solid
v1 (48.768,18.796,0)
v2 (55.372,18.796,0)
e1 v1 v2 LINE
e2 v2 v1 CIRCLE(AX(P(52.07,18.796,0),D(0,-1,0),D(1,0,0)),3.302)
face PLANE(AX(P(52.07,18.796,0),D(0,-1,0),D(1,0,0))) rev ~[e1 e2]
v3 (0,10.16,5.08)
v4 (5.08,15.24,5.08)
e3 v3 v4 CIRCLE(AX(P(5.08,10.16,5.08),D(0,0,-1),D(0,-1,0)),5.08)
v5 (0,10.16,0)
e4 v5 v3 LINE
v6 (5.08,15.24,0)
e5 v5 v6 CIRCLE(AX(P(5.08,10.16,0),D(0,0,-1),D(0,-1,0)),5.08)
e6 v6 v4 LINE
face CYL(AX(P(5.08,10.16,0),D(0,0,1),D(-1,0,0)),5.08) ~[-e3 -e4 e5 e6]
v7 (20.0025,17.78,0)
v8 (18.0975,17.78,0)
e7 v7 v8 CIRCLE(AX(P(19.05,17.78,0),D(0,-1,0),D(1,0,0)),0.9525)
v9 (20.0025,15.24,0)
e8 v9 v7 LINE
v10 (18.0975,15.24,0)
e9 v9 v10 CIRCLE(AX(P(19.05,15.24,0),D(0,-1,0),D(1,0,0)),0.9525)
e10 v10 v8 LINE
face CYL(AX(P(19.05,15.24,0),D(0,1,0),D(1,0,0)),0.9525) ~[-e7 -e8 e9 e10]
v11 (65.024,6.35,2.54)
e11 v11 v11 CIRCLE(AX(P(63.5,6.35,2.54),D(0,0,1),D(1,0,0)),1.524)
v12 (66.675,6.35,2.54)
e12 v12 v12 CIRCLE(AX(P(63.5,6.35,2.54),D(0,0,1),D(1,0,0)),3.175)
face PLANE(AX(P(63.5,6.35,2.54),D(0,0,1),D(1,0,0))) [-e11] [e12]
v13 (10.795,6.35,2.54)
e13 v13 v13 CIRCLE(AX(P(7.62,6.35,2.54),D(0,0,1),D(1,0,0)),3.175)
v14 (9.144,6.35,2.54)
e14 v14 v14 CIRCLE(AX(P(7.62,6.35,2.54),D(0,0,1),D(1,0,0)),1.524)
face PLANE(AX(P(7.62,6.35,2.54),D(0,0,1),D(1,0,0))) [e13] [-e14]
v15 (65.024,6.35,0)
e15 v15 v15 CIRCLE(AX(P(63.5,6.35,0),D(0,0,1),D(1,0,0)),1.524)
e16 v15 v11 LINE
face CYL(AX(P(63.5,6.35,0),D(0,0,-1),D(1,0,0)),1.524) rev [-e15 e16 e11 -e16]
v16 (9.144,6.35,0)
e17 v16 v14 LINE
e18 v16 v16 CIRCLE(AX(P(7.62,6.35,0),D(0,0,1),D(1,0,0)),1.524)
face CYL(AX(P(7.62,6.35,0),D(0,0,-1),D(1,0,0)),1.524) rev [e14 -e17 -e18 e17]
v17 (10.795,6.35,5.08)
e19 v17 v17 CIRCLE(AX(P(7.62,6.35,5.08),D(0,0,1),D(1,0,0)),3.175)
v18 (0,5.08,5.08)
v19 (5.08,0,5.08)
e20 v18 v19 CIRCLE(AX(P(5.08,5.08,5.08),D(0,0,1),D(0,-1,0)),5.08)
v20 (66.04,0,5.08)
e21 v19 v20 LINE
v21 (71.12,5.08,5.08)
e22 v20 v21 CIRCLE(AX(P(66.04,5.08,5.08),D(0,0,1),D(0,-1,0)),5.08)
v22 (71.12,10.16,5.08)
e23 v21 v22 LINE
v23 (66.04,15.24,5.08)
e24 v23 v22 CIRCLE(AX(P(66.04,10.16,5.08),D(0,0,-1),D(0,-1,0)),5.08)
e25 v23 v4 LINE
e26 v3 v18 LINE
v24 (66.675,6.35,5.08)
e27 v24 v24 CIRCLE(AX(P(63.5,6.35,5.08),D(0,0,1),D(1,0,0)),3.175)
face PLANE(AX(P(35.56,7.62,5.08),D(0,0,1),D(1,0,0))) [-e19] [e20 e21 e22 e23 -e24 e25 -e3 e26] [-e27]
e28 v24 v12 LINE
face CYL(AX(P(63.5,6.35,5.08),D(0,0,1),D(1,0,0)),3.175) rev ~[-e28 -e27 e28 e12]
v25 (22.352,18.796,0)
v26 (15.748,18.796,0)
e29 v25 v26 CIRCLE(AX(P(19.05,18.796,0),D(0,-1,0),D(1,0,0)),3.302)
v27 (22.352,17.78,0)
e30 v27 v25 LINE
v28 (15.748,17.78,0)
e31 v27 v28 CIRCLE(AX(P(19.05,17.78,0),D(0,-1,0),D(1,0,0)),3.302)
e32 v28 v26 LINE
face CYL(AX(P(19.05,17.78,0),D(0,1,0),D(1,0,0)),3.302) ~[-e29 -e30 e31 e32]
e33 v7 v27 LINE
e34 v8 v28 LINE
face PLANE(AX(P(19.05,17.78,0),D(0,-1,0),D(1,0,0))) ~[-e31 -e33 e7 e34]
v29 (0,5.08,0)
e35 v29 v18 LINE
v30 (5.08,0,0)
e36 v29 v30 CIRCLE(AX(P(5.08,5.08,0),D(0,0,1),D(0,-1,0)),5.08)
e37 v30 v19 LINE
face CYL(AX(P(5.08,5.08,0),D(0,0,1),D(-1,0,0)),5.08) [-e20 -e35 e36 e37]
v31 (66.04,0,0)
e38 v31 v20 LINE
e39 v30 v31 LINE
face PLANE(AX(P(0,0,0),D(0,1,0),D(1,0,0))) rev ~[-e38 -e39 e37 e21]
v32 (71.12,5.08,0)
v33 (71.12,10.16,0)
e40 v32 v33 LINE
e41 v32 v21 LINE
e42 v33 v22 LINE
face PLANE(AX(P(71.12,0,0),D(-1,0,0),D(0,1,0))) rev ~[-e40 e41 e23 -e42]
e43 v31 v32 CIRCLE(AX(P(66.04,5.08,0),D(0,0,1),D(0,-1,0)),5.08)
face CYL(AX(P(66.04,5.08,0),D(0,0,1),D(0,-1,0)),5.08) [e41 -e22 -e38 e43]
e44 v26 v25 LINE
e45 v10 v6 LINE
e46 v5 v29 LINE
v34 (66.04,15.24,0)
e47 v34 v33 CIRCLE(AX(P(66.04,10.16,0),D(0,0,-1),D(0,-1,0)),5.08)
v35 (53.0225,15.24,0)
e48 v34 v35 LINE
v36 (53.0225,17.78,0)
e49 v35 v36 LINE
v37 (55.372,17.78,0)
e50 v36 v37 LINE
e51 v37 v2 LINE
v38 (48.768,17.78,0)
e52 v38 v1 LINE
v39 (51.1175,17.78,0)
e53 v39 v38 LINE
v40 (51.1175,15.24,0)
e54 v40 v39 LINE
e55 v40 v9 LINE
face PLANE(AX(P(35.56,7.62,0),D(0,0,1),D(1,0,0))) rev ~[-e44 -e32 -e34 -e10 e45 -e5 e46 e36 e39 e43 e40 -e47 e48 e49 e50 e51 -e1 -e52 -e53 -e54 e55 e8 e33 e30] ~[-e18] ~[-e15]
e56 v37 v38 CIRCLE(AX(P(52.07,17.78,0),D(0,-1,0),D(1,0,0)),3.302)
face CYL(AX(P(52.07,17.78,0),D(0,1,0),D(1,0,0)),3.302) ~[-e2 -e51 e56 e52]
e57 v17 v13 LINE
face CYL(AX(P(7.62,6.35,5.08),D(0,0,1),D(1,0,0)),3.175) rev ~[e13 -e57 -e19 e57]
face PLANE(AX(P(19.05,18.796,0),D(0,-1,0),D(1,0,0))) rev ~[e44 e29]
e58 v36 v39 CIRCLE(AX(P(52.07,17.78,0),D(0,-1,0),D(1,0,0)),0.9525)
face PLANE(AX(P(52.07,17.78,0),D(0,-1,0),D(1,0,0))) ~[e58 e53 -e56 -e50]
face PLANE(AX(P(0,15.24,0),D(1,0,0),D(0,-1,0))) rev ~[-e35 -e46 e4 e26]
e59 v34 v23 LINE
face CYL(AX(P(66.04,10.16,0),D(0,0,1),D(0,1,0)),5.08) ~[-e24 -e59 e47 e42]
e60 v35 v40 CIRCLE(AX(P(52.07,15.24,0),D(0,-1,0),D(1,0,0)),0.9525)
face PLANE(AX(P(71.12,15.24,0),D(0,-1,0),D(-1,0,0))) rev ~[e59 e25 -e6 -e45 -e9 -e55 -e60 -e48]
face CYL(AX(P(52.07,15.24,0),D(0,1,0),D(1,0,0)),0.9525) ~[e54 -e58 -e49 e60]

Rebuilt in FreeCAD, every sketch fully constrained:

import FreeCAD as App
import Part
import Sketcher
Q = App.Units.Quantity


def edges_at(feature, points):
    """Names of the edges that pass closest to the given points."""
    edges = feature.Shape.Edges
    near = lambda p: min(range(len(edges)), key=lambda i: edges[i].distToShape(Part.Vertex(*p))[0])
    return sorted({f"Edge{near(p) + 1}" for p in points})

doc = App.newDocument("Part")
params = doc.addObject("Spreadsheet::Sheet", "Params")
for row, (alias, value) in enumerate([
    ("sketch1_diameter", "0.12 in"),
    ("sketch1_width", "2.8 in"),
    ("sketch1_height", "0.6 in"),
    ("pad1_length", "0.2 in"),
    ("sketch2_height", "0.1 in"),
    ("sketch2_width", "0.13 in"),
    ("sketch2_height2", "0.14 in"),
    ("revolution_angle", "180 deg"),
    ("sketch3_height", "0.1 in"),
    ("sketch3_width", "0.13 in"),
    ("sketch3_height2", "0.04 in"),
    ("revolution2_angle", "180 deg"),
    ("sketch4_diameter", "0.25 in"),
    ("sketch4_diameter2", "0.12 in"),
    ("pocket1_length", "0.1 in"),
    ("fillet_radius", "0.2 in"),
], start=1):
    params.set(f"A{row}", alias)
    params.set(f"B{row}", "=" + value)
    params.setAlias(f"B{row}", alias)

body = doc.addObject("PartDesign::Body", "Body")

sketch1 = body.newObject("Sketcher::SketchObject", "Sketch")
sketch1.AttachmentSupport = (doc.getObject("XY_Plane"), [""])
sketch1.MapMode = "FlatFace"
sketch1.addGeometry(Part.LineSegment(App.Vector(0, 15.2, 0), App.Vector(0, 0, 0)), False)
sketch1.addGeometry(Part.LineSegment(App.Vector(0, 0, 0), App.Vector(71.1, 0, 0)), False)
sketch1.addGeometry(Part.LineSegment(App.Vector(71.1, 0, 0), App.Vector(71.1, 15.2, 0)), False)
sketch1.addGeometry(Part.LineSegment(App.Vector(71.1, 15.2, 0), App.Vector(0, 15.2, 0)), False)
sketch1.addGeometry(Part.Circle(App.Vector(7.6, 6.3, 0), App.Vector(0, 0, 1), 1.5), False)
sketch1.addGeometry(Part.Circle(App.Vector(63.5, 6.3, 0), App.Vector(0, 0, 1), 1.5), False)
sketch1.addConstraint(Sketcher.Constraint("Coincident", 0, 2, 1, 1))
sketch1.addConstraint(Sketcher.Constraint("Coincident", 1, 2, 2, 1))
sketch1.addConstraint(Sketcher.Constraint("Coincident", 2, 2, 3, 1))
sketch1.addConstraint(Sketcher.Constraint("Coincident", 3, 2, 0, 1))
sketch1.addConstraint(Sketcher.Constraint("Vertical", 0))
sketch1.addConstraint(Sketcher.Constraint("Horizontal", 1))
sketch1.addConstraint(Sketcher.Constraint("Vertical", 2))
sketch1.addConstraint(Sketcher.Constraint("Horizontal", 3))
sketch1.addConstraint(Sketcher.Constraint("Coincident", 0, 2, -1, 1))
sketch1.addConstraint(Sketcher.Constraint("Equal", 4, 5))
sketch1.addConstraint(Sketcher.Constraint("Horizontal", 4, 3, 5, 3))
sketch1.addConstraint(Sketcher.Constraint("Diameter", 4, Q("0.12 in")))
sketch1.addConstraint(Sketcher.Constraint("DistanceX", 1, 1, 1, 2, Q("2.8 in")))
sketch1.addConstraint(Sketcher.Constraint("DistanceY", 0, 2, 0, 1, Q("0.6 in")))
sketch1.addConstraint(Sketcher.Constraint("DistanceX", -1, 1, 4, 3, Q("0.3 in")))
sketch1.addConstraint(Sketcher.Constraint("DistanceX", -1, 1, 5, 3, Q("2.5 in")))
sketch1.addConstraint(Sketcher.Constraint("DistanceY", -1, 1, 4, 3, Q("0.25 in")))
sketch1.setExpression("Constraints[11]", "Params.sketch1_diameter")
sketch1.setExpression("Constraints[12]", "Params.sketch1_width")
sketch1.setExpression("Constraints[13]", "Params.sketch1_height")
pad1 = body.newObject("PartDesign::Pad", "Pad")
pad1.Profile = sketch1
pad1.setExpression("Length", "Params.pad1_length")

sketch2 = body.newObject("Sketcher::SketchObject", "Sketch001")
sketch2.AttachmentSupport = (doc.getObject("XY_Plane"), [""])
sketch2.MapMode = "FlatFace"
sketch2.addGeometry(Part.LineSegment(App.Vector(19.1, 18.8, 0), App.Vector(19.1, 15.2, 0)), False)
sketch2.addGeometry(Part.LineSegment(App.Vector(19.1, 15.2, 0), App.Vector(20, 15.2, 0)), False)
sketch2.addGeometry(Part.LineSegment(App.Vector(20, 15.2, 0), App.Vector(20, 17.8, 0)), False)
sketch2.addGeometry(Part.LineSegment(App.Vector(20, 17.8, 0), App.Vector(22.4, 17.8, 0)), False)
sketch2.addGeometry(Part.LineSegment(App.Vector(22.4, 17.8, 0), App.Vector(22.4, 18.8, 0)), False)
sketch2.addGeometry(Part.LineSegment(App.Vector(22.4, 18.8, 0), App.Vector(19.1, 18.8, 0)), False)
sketch2.addGeometry(Part.LineSegment(App.Vector(19.1, 18.8, 0), App.Vector(19.1, 15.2, 0)), True)
sketch2.addConstraint(Sketcher.Constraint("Coincident", 0, 2, 1, 1))
sketch2.addConstraint(Sketcher.Constraint("Coincident", 1, 2, 2, 1))
sketch2.addConstraint(Sketcher.Constraint("Coincident", 2, 2, 3, 1))
sketch2.addConstraint(Sketcher.Constraint("Coincident", 3, 2, 4, 1))
sketch2.addConstraint(Sketcher.Constraint("Coincident", 4, 2, 5, 1))
sketch2.addConstraint(Sketcher.Constraint("Coincident", 5, 2, 0, 1))
sketch2.addConstraint(Sketcher.Constraint("Vertical", 0))
sketch2.addConstraint(Sketcher.Constraint("Horizontal", 1))
sketch2.addConstraint(Sketcher.Constraint("Vertical", 2))
sketch2.addConstraint(Sketcher.Constraint("Horizontal", 3))
sketch2.addConstraint(Sketcher.Constraint("Vertical", 4))
sketch2.addConstraint(Sketcher.Constraint("Horizontal", 5))
sketch2.addConstraint(Sketcher.Constraint("Vertical", 6))
sketch2.addConstraint(Sketcher.Constraint("Coincident", 6, 1, 5, 2))
sketch2.addConstraint(Sketcher.Constraint("Horizontal", 1, 2, 6, 2))
sketch2.addConstraint(Sketcher.Constraint("DistanceY", 2, 1, 2, 2, Q("0.1 in")))
sketch2.addConstraint(Sketcher.Constraint("DistanceX", 5, 2, 5, 1, Q("0.13 in")))
sketch2.addConstraint(Sketcher.Constraint("DistanceY", 0, 2, 0, 1, Q("0.14 in")))
sketch2.addConstraint(Sketcher.Constraint("DistanceY", -1, 1, 0, 2, Q("0.6 in")))
sketch2.addConstraint(Sketcher.Constraint("DistanceX", -1, 1, 0, 2, Q("0.75 in")))
sketch2.addConstraint(Sketcher.Constraint("DistanceX", 1, 1, 1, 2, Q("0.0375 in")))
sketch2.setExpression("Constraints[15]", "Params.sketch2_height")
sketch2.setExpression("Constraints[16]", "Params.sketch2_width")
sketch2.setExpression("Constraints[17]", "Params.sketch2_height2")
revolution = body.newObject("PartDesign::Revolution", "Revolution")
revolution.Profile = sketch2
revolution.ReferenceAxis = (sketch2, ["Axis0"])
revolution.setExpression("Angle", "Params.revolution_angle")

sketch3 = body.newObject("Sketcher::SketchObject", "Sketch002")
sketch3.AttachmentSupport = (doc.getObject("XY_Plane"), [""])
sketch3.MapMode = "FlatFace"
sketch3.addGeometry(Part.LineSegment(App.Vector(52.1, 15.2, 0), App.Vector(53, 15.2, 0)), False)
sketch3.addGeometry(Part.LineSegment(App.Vector(53, 15.2, 0), App.Vector(53, 17.8, 0)), False)
sketch3.addGeometry(Part.LineSegment(App.Vector(53, 17.8, 0), App.Vector(55.4, 17.8, 0)), False)
sketch3.addGeometry(Part.LineSegment(App.Vector(55.4, 17.8, 0), App.Vector(55.4, 18.8, 0)), False)
sketch3.addGeometry(Part.LineSegment(App.Vector(55.4, 18.8, 0), App.Vector(52.1, 18.8, 0)), False)
sketch3.addGeometry(Part.LineSegment(App.Vector(52.1, 18.8, 0), App.Vector(52.1, 15.2, 0)), False)
sketch3.addGeometry(Part.LineSegment(App.Vector(52.1, 18.8, 0), App.Vector(52.1, 15.2, 0)), True)
sketch3.addConstraint(Sketcher.Constraint("Coincident", 0, 2, 1, 1))
sketch3.addConstraint(Sketcher.Constraint("Coincident", 1, 2, 2, 1))
sketch3.addConstraint(Sketcher.Constraint("Coincident", 2, 2, 3, 1))
sketch3.addConstraint(Sketcher.Constraint("Coincident", 3, 2, 4, 1))
sketch3.addConstraint(Sketcher.Constraint("Coincident", 4, 2, 5, 1))
sketch3.addConstraint(Sketcher.Constraint("Coincident", 5, 2, 0, 1))
sketch3.addConstraint(Sketcher.Constraint("Horizontal", 0))
sketch3.addConstraint(Sketcher.Constraint("Vertical", 1))
sketch3.addConstraint(Sketcher.Constraint("Horizontal", 2))
sketch3.addConstraint(Sketcher.Constraint("Vertical", 3))
sketch3.addConstraint(Sketcher.Constraint("Horizontal", 4))
sketch3.addConstraint(Sketcher.Constraint("Vertical", 5))
sketch3.addConstraint(Sketcher.Constraint("Vertical", 6))
sketch3.addConstraint(Sketcher.Constraint("Coincident", 6, 1, 4, 2))
sketch3.addConstraint(Sketcher.Constraint("Horizontal", 0, 2, 6, 2))
sketch3.addConstraint(Sketcher.Constraint("DistanceY", 1, 1, 1, 2, Q("0.1 in")))
sketch3.addConstraint(Sketcher.Constraint("DistanceX", 4, 2, 4, 1, Q("0.13 in")))
sketch3.addConstraint(Sketcher.Constraint("DistanceY", 3, 1, 3, 2, Q("0.04 in")))
sketch3.addConstraint(Sketcher.Constraint("DistanceY", -1, 1, 0, 2, Q("0.6 in")))
sketch3.addConstraint(Sketcher.Constraint("DistanceX", -1, 1, 2, 2, Q("2.18 in")))
sketch3.addConstraint(Sketcher.Constraint("DistanceX", 0, 1, 0, 2, Q("0.0375 in")))
sketch3.setExpression("Constraints[15]", "Params.sketch3_height")
sketch3.setExpression("Constraints[16]", "Params.sketch3_width")
sketch3.setExpression("Constraints[17]", "Params.sketch3_height2")
revolution2 = body.newObject("PartDesign::Revolution", "Revolution001")
revolution2.Profile = sketch3
revolution2.ReferenceAxis = (sketch3, ["Axis0"])
revolution2.setExpression("Angle", "Params.revolution2_angle")

sketch4 = body.newObject("Sketcher::SketchObject", "Sketch003")
sketch4.AttachmentSupport = (doc.getObject("XY_Plane"), [""])
sketch4.MapMode = "FlatFace"
sketch4.AttachmentOffset = App.Placement(App.Vector(0, 0, 0.2 * 25.4), App.Rotation())
sketch4.addGeometry(Part.Circle(App.Vector(7.6, 6.3, 0), App.Vector(0, 0, 1), 3.2), False)
sketch4.addGeometry(Part.Circle(App.Vector(7.6, 6.3, 0), App.Vector(0, 0, 1), 1.5), False)
sketch4.addGeometry(Part.Circle(App.Vector(63.5, 6.3, 0), App.Vector(0, 0, 1), 3.2), False)
sketch4.addGeometry(Part.Circle(App.Vector(63.5, 6.3, 0), App.Vector(0, 0, 1), 1.5), False)
sketch4.addConstraint(Sketcher.Constraint("Coincident", 1, 3, 0, 3))
sketch4.addConstraint(Sketcher.Constraint("Coincident", 3, 3, 2, 3))
sketch4.addConstraint(Sketcher.Constraint("Equal", 0, 2))
sketch4.addConstraint(Sketcher.Constraint("Equal", 1, 3))
sketch4.addConstraint(Sketcher.Constraint("Horizontal", 1, 3, 2, 3))
sketch4.addConstraint(Sketcher.Constraint("Diameter", 0, Q("0.25 in")))
sketch4.addConstraint(Sketcher.Constraint("Diameter", 1, Q("0.12 in")))
sketch4.addConstraint(Sketcher.Constraint("DistanceX", -1, 1, 0, 3, Q("0.3 in")))
sketch4.addConstraint(Sketcher.Constraint("DistanceX", -1, 1, 2, 3, Q("2.5 in")))
sketch4.addConstraint(Sketcher.Constraint("DistanceY", -1, 1, 0, 3, Q("0.25 in")))
sketch4.setExpression("Constraints[5]", "Params.sketch4_diameter")
sketch4.setExpression("Constraints[6]", "Params.sketch4_diameter2")
pocket1 = body.newObject("PartDesign::Pocket", "Pocket")
pocket1.Profile = sketch4
pocket1.setExpression("Length", "Params.pocket1_length")
doc.recompute()

fillet = body.newObject("PartDesign::Fillet", "Fillet")
fillet.Base = (pocket1, edges_at(pocket1, [
    (71.12, 15.24, 2.54),
    (71.12, 0, 2.54),
    (0, 15.24, 2.54),
    (0, 0, 2.54),
]))
fillet.setExpression("Radius", "Params.fillet_radius")

doc.recompute()
